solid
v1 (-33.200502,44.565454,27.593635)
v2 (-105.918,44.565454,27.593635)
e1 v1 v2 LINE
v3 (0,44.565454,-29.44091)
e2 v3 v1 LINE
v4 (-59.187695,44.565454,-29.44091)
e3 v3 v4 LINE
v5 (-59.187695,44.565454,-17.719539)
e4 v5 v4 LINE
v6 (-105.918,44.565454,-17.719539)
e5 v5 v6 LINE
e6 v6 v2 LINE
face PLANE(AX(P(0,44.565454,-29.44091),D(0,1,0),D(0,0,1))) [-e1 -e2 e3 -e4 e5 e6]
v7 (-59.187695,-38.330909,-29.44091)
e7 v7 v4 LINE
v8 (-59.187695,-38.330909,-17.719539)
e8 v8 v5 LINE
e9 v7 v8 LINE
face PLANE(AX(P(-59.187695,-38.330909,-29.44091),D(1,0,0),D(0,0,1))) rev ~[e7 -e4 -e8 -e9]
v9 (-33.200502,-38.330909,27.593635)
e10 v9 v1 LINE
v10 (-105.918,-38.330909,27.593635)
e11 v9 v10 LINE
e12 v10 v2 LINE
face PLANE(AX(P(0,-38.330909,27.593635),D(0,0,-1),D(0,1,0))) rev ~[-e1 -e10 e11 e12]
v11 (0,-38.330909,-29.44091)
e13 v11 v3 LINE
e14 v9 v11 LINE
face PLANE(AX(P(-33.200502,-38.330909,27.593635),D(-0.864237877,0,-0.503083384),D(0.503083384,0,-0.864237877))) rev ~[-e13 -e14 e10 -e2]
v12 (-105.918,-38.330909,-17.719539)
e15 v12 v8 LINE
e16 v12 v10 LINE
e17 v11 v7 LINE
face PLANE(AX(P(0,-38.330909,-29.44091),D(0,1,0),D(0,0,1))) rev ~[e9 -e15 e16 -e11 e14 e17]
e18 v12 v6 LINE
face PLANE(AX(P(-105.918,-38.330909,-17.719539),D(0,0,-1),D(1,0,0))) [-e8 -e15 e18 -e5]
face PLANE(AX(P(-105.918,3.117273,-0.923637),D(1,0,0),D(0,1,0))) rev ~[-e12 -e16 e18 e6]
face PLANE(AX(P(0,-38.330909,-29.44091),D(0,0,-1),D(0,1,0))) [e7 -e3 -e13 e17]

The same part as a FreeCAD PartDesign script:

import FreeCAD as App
import Part
import Sketcher
Q = App.Units.Quantity


def add_polygon(sketch, points):
    """Adds a closed chain of lines whose ends are joined by coincident constraints."""
    first, n = sketch.GeometryCount, len(points)
    for a, b in zip(points, points[1:] + points[:1]):
        sketch.addGeometry(Part.LineSegment(App.Vector(*a, 0), App.Vector(*b, 0)), False)
    for i in range(n):
        sketch.addConstraint(Sketcher.Constraint("Coincident", first + i, 2, first + (i + 1) % n, 1))

doc = App.newDocument("Part")
params = doc.addObject("Spreadsheet::Sheet", "Params")
for row, (alias, value) in enumerate([
    ("pad1_length", "4.17 in"),
], start=1):
    params.set(f"A{row}", alias)
    params.set(f"B{row}", "=" + value)
    params.setAlias(f"B{row}", alias)

body = doc.addObject("PartDesign::Body", "Body")

# Sketch on YZ plane
sketch1 = body.newObject("Sketcher::SketchObject", "Sketch")
sketch1.AttachmentSupport = (doc.getObject("YZ_Plane"), [""])
sketch1.MapMode = "FlatFace"
add_polygon(sketch1, [(-38, 28), (-38, -29), (45, -29), (45, 28)])  # lines 0-3
sketch1.addConstraint(Sketcher.Constraint("Vertical", 0))
sketch1.addConstraint(Sketcher.Constraint("Horizontal", 1))
sketch1.addConstraint(Sketcher.Constraint("Vertical", 2))
sketch1.addConstraint(Sketcher.Constraint("Horizontal", 3))
sketch1.addConstraint(Sketcher.Constraint("DistanceX", 1, 1, 1, 2, Q("82.896363 mm")))
sketch1.addConstraint(Sketcher.Constraint("DistanceY", 0, 2, 0, 1, Q("57.034545 mm")))
sketch1.addConstraint(Sketcher.Constraint("DistanceX", 0, 2, -1, 1, Q("38.330909 mm")))
sketch1.addConstraint(Sketcher.Constraint("DistanceY", 0, 2, -1, 1, Q("29.44091 mm")))
pad1 = body.newObject("PartDesign::Pad", "Pad")
pad1.Profile = sketch1
pad1.setExpression("Length", "Params.pad1_length")
pad1.Reversed = True

# Sketch on XZ plane
sketch2 = body.newObject("Sketcher::SketchObject", "Sketch001")
sketch2.AttachmentSupport = (doc.getObject("XZ_Plane"), [""])
sketch2.MapMode = "FlatFace"
sketch2.AttachmentOffset = App.Placement(App.Vector(0, 0, 38.330909), App.Rotation())
add_polygon(sketch2, [(0, 28), (-33, 28), (0, -29)])  # lines 0-2
sketch2.addConstraint(Sketcher.Constraint("Horizontal", 0))
sketch2.addConstraint(Sketcher.Constraint("Vertical", 2))
sketch2.addConstraint(Sketcher.Constraint("PointOnObject", 1, 2, -2))
sketch2.addConstraint(Sketcher.Constraint("DistanceX", 0, 2, 0, 1, Q("33.200502 mm")))
sketch2.addConstraint(Sketcher.Constraint("DistanceY", 2, 1, 2, 2, Q("57.034545 mm")))
sketch2.addConstraint(Sketcher.Constraint("DistanceY", 1, 2, -1, 1, Q("29.44091 mm")))
pocket1 = body.newObject("PartDesign::Pocket", "Pocket")
pocket1.Profile = sketch2
pocket1.Type = "ThroughAll"

# Sketch on XZ plane
sketch3 = body.newObject("Sketcher::SketchObject", "Sketch002")
sketch3.AttachmentSupport = (doc.getObject("XZ_Plane"), [""])
sketch3.MapMode = "FlatFace"
sketch3.AttachmentOffset = App.Placement(App.Vector(0, 0, 38.330909), App.Rotation())
add_polygon(sketch3, [(-106, -18), (-106, -29), (-59, -29), (-59, -18)])  # lines 0-3
sketch3.addConstraint(Sketcher.Constraint("Vertical", 0))
sketch3.addConstraint(Sketcher.Constraint("Horizontal", 1))
sketch3.addConstraint(Sketcher.Constraint("Vertical", 2))
sketch3.addConstraint(Sketcher.Constraint("Horizontal", 3))
sketch3.addConstraint(Sketcher.Constraint("DistanceX", 0, 2, -1, 1, Q("4.17 in")))
sketch3.addConstraint(Sketcher.Constraint("DistanceY", 0, 2, 0, 1, Q("11.721371 mm")))
sketch3.addConstraint(Sketcher.Constraint("DistanceX", 1, 1, 1, 2, Q("46.730305 mm")))
sketch3.addConstraint(Sketcher.Constraint("DistanceY", 0, 2, -1, 1, Q("29.44091 mm")))
pocket2 = body.newObject("PartDesign::Pocket", "Pocket001")
pocket2.Profile = sketch3
pocket2.Type = "ThroughAll"

doc.recompute()
